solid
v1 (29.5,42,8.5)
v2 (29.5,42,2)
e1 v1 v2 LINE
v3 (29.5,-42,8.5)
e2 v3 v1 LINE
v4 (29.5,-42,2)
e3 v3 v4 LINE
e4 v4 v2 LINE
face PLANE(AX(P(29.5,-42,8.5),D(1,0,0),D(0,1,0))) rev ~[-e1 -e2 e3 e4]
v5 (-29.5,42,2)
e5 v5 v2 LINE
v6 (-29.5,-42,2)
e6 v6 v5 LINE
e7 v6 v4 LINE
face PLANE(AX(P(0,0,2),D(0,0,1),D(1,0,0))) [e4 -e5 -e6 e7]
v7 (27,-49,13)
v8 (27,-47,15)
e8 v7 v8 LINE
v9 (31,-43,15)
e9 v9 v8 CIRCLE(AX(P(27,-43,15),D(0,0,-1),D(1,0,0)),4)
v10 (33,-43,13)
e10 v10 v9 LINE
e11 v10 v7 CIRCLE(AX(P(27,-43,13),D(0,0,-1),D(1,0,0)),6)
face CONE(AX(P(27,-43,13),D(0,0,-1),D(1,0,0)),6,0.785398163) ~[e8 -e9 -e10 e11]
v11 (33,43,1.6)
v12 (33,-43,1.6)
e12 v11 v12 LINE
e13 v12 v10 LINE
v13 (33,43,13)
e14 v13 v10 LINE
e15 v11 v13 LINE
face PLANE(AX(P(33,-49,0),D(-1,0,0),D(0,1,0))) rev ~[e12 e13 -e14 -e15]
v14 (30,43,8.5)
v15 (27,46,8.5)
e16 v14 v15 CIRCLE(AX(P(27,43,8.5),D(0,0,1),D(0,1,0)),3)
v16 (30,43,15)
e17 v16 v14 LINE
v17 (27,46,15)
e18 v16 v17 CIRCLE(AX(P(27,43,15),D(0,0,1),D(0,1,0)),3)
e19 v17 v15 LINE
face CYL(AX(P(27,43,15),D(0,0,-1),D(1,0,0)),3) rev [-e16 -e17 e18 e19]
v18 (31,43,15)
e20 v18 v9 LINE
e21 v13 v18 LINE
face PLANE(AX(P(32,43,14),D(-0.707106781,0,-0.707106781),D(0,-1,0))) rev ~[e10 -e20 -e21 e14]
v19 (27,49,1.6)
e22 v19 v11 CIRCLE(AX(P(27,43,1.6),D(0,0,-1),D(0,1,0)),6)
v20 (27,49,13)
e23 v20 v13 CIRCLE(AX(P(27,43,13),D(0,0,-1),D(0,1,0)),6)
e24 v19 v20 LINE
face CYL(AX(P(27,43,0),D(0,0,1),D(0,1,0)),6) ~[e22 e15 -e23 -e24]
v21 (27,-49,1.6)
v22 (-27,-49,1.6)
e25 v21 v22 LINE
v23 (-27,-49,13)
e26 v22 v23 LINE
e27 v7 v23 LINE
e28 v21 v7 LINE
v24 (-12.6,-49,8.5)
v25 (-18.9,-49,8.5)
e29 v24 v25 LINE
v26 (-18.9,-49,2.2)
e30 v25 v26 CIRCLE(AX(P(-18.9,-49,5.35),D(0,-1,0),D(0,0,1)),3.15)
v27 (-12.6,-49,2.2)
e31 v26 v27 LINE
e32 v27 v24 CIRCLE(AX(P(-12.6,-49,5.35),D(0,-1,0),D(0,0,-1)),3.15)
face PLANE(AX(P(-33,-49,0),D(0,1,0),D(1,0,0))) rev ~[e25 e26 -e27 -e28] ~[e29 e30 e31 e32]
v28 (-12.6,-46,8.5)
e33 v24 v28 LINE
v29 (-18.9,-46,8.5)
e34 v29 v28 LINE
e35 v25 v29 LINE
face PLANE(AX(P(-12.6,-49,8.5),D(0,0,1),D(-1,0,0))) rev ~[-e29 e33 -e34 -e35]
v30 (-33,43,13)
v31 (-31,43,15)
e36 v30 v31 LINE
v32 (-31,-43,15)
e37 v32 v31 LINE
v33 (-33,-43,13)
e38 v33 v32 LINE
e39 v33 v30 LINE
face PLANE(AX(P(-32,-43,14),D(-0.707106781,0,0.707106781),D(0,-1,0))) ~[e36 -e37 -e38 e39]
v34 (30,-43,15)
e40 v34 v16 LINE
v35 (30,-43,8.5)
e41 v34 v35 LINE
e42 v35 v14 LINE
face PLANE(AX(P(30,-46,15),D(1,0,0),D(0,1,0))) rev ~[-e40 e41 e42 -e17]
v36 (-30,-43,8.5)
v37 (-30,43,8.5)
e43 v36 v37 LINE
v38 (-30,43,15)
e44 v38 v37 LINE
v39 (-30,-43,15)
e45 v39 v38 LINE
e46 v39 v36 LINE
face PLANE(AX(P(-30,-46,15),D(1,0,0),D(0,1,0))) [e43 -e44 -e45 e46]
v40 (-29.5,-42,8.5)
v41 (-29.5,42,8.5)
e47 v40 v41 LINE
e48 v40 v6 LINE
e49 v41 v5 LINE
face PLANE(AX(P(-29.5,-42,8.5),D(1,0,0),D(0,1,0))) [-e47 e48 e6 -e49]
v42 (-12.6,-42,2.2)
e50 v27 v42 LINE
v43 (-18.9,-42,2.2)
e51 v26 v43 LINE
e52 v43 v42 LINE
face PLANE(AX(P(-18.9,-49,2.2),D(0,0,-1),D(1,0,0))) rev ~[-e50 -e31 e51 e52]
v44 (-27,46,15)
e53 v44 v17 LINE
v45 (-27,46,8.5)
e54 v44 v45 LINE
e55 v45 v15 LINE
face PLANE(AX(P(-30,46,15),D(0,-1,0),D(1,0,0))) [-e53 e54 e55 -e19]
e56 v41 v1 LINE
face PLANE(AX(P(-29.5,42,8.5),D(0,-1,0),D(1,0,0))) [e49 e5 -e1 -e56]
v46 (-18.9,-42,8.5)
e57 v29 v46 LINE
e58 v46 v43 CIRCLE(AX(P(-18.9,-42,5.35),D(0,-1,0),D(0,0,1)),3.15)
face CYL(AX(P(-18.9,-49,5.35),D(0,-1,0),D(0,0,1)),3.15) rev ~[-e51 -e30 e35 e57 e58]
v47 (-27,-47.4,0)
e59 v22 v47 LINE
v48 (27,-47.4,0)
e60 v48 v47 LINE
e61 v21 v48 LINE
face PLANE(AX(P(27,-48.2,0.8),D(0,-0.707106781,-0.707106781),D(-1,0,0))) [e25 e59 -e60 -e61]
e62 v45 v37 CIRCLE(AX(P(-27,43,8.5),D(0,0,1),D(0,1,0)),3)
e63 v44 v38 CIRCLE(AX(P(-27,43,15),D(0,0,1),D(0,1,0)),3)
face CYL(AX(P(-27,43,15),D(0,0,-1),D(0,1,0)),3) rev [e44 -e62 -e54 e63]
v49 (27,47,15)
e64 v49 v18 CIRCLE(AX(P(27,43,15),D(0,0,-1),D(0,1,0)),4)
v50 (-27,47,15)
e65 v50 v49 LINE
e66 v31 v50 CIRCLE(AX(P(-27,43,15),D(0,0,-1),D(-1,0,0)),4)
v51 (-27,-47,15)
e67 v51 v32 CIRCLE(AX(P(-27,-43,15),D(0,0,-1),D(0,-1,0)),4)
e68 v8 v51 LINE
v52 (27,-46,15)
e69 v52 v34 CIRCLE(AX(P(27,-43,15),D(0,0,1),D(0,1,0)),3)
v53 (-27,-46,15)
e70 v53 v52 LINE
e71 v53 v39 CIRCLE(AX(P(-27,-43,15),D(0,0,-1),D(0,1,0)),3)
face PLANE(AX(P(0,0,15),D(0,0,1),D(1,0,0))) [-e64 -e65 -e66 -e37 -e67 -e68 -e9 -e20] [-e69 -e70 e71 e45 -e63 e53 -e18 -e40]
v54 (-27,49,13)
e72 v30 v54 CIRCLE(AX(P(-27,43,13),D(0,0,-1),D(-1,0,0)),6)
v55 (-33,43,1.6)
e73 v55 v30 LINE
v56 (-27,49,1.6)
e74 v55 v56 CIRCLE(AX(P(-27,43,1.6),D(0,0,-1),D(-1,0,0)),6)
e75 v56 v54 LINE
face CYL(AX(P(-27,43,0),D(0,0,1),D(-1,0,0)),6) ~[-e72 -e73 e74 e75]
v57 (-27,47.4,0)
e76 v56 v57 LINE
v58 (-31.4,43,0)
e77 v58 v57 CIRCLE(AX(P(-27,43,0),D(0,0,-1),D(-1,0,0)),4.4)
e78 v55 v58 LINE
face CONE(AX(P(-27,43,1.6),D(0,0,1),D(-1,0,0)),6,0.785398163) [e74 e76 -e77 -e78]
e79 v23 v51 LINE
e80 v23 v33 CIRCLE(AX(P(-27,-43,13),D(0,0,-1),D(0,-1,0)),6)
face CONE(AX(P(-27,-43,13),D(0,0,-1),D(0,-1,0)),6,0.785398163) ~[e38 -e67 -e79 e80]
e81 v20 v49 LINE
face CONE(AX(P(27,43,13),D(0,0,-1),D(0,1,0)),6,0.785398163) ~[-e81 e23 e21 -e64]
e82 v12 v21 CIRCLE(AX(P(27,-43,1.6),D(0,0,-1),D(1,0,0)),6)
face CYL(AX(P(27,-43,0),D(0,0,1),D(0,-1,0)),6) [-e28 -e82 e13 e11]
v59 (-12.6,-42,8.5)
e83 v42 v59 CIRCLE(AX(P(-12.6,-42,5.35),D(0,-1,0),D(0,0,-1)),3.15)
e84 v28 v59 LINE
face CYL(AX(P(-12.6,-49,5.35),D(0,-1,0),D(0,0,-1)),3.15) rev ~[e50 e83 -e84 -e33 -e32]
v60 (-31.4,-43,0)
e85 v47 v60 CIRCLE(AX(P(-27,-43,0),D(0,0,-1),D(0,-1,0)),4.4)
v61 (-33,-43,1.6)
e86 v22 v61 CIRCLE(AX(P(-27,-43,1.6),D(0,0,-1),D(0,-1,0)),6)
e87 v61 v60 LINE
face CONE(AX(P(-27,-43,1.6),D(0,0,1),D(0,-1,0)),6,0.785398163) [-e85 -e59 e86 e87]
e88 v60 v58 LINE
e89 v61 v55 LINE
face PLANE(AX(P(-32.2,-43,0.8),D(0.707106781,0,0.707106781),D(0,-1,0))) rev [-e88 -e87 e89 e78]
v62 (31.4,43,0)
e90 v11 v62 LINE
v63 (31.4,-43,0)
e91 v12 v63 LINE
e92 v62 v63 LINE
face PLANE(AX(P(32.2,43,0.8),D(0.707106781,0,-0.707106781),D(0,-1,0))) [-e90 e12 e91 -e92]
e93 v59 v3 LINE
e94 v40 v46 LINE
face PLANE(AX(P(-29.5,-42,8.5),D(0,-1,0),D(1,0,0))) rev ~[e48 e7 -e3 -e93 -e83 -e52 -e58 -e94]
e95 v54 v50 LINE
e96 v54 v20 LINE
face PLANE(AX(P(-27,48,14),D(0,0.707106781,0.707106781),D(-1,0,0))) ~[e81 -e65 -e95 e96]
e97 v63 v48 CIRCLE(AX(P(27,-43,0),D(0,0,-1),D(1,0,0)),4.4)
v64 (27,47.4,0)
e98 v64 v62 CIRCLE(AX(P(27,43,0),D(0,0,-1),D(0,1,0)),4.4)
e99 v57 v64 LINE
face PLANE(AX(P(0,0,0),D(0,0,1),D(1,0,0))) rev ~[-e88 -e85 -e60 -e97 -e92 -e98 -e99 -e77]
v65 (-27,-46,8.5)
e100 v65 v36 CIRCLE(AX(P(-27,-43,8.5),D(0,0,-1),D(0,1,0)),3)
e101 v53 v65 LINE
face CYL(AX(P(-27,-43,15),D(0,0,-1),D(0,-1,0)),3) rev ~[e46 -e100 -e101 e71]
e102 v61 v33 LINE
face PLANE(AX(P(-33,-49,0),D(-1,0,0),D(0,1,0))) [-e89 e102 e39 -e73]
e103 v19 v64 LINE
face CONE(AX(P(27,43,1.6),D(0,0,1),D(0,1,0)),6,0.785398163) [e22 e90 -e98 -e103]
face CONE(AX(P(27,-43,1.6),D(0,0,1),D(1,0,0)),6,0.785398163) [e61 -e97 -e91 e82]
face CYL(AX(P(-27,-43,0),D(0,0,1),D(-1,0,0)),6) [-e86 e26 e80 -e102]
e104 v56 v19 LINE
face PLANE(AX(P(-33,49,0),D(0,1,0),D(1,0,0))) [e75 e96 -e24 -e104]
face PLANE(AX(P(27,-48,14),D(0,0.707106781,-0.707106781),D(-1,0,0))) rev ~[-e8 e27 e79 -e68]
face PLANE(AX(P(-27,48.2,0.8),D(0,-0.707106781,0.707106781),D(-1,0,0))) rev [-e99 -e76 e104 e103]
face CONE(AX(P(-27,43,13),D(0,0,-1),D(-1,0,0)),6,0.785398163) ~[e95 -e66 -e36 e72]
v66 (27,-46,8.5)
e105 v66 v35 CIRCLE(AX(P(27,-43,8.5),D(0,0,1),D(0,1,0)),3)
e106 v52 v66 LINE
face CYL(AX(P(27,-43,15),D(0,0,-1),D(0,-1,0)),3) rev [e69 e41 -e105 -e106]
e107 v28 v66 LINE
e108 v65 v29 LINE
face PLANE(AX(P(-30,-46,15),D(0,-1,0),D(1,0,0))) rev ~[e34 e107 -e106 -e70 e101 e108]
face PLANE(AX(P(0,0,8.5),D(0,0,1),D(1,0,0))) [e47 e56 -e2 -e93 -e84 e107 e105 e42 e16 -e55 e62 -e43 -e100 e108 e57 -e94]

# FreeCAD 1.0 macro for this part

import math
import FreeCAD as App
import Part
import Sketcher

V = App.Vector


def edges_at(feature, points):
    """Names of the edges that pass closest to the given points."""
    edges = feature.Shape.Edges
    near = lambda p: min(range(len(edges)), key=lambda i: edges[i].distToShape(Part.Vertex(*p))[0])
    return sorted({f"Edge{near(p) + 1}" for p in points})


def add_polygon(sketch, points):
    """Adds a closed chain of lines whose ends are joined by coincident constraints."""
    first, n = sketch.GeometryCount, len(points)
    for a, b in zip(points, points[1:] + points[:1]):
        sketch.addGeometry(Part.LineSegment(App.Vector(*a, 0), App.Vector(*b, 0)), False)
    for i in range(n):
        sketch.addConstraint(Sketcher.Constraint("Coincident", first + i, 2, first + (i + 1) % n, 1))

doc = App.newDocument("Part")
body = doc.addObject("PartDesign::Body", "Body")

sketch1 = doc.addObject("Sketcher::SketchObject", "Sketch")
body.addObject(sketch1)
sketch1.AttachmentSupport = (doc.XY_Plane, [""])
sketch1.MapMode = "FlatFace"
add_polygon(sketch1, [(-33, 49), (-33, -49), (33, -49), (33, 49)])
sketch1.addConstraint(Sketcher.Constraint("Vertical", 0))
sketch1.addConstraint(Sketcher.Constraint("Horizontal", 1))
sketch1.addConstraint(Sketcher.Constraint("Vertical", 2))
sketch1.addConstraint(Sketcher.Constraint("Horizontal", 3))
sketch1.addConstraint(Sketcher.Constraint("Symmetric", 0, 2, 2, 2, -1, 1))
sketch1.addConstraint(Sketcher.Constraint("DistanceX", 1, 1, 1, 2, 66.0))
sketch1.addConstraint(Sketcher.Constraint("DistanceY", 0, 2, 0, 1, 98.0))
pad1 = doc.addObject("PartDesign::Pad", "Pad")
body.addObject(pad1)
pad1.Profile = sketch1
pad1.Length = 15

sketch2 = doc.addObject("Sketcher::SketchObject", "Sketch001")
body.addObject(sketch2)
sketch2.AttachmentSupport = (doc.XY_Plane, [""])
sketch2.MapMode = "FlatFace"
sketch2.AttachmentOffset = App.Placement(V(0, 0, 15), App.Rotation())
add_polygon(sketch2, [(-30, 46), (-30, -46), (30, -46), (30, 46)])
sketch2.addConstraint(Sketcher.Constraint("Vertical", 0))
sketch2.addConstraint(Sketcher.Constraint("Horizontal", 1))
sketch2.addConstraint(Sketcher.Constraint("Vertical", 2))
sketch2.addConstraint(Sketcher.Constraint("Horizontal", 3))
sketch2.addConstraint(Sketcher.Constraint("Symmetric", 0, 2, 2, 2, -1, 1))
sketch2.addConstraint(Sketcher.Constraint("DistanceX", 1, 1, 1, 2, 60.0))
sketch2.addConstraint(Sketcher.Constraint("DistanceY", 0, 2, 0, 1, 92.0))
pocket1 = doc.addObject("PartDesign::Pocket", "Pocket")
body.addObject(pocket1)
pocket1.Profile = sketch2
pocket1.Length = 6.5
doc.recompute()

fillet = doc.addObject("PartDesign::Fillet", "Fillet")
body.addObject(fillet)
fillet.Base = (pocket1, edges_at(pocket1, [
    (30, 46, 11.75),
    (-30, 46, 11.75),
    (-30, -46, 11.75),
    (30, -46, 11.75),
]))
fillet.Radius = 3

sketch3 = doc.addObject("Sketcher::SketchObject", "Sketch002")
body.addObject(sketch3)
sketch3.AttachmentSupport = (doc.XY_Plane, [""])
sketch3.MapMode = "FlatFace"
sketch3.AttachmentOffset = App.Placement(V(0, 0, 8.5), App.Rotation())
add_polygon(sketch3, [(-30, 42), (-30, -42), (30, -42), (30, 42)])
sketch3.addConstraint(Sketcher.Constraint("Vertical", 0))
sketch3.addConstraint(Sketcher.Constraint("Horizontal", 1))
sketch3.addConstraint(Sketcher.Constraint("Vertical", 2))
sketch3.addConstraint(Sketcher.Constraint("Horizontal", 3))
sketch3.addConstraint(Sketcher.Constraint("Symmetric", 0, 2, 2, 2, -1, 1))
sketch3.addConstraint(Sketcher.Constraint("DistanceX", 1, 1, 1, 2, 59.0))
sketch3.addConstraint(Sketcher.Constraint("DistanceY", 0, 2, 0, 1, 84.0))
pocket2 = doc.addObject("PartDesign::Pocket", "Pocket001")
body.addObject(pocket2)
pocket2.Profile = sketch3
pocket2.Length = 6.5

sketch4 = doc.addObject("Sketcher::SketchObject", "Sketch003")
body.addObject(sketch4)
sketch4.AttachmentSupport = (doc.XZ_Plane, [""])
sketch4.MapMode = "FlatFace"
sketch4.AttachmentOffset = App.Placement(V(0, 0, 49), App.Rotation())
sketch4.addGeometry(Part.ArcOfCircle(Part.Circle(V(-18.9, 5.3, 0), V(0, 0, 1), 3.1), math.radians(90), math.radians(270)), False)
sketch4.addGeometry(Part.LineSegment(V(-18.9, 2.2, 0), V(-12.6, 2.2, 0)), False)
sketch4.addGeometry(Part.ArcOfCircle(Part.Circle(V(-12.6, 5.3, 0), V(0, 0, 1), 3.1), math.radians(-90), math.radians(90)), False)
sketch4.addGeometry(Part.LineSegment(V(-12.6, 8.5, 0), V(-18.9, 8.5, 0)), False)
sketch4.addConstraint(Sketcher.Constraint("Tangent", 0, 2, 1, 1))
sketch4.addConstraint(Sketcher.Constraint("Tangent", 1, 2, 2, 1))
sketch4.addConstraint(Sketcher.Constraint("Tangent", 2, 2, 3, 1))
sketch4.addConstraint(Sketcher.Constraint("Tangent", 3, 2, 0, 1))
sketch4.addConstraint(Sketcher.Constraint("Horizontal", 1))
sketch4.addConstraint(Sketcher.Constraint("Horizontal", 3))
sketch4.addConstraint(Sketcher.Constraint("Radius", 0, 3.15))
sketch4.addConstraint(Sketcher.Constraint("DistanceX", 1, 1, 1, 2, 6.3))
sketch4.addConstraint(Sketcher.Constraint("DistanceX", 0, 3, -1, 1, 18.9))
sketch4.addConstraint(Sketcher.Constraint("DistanceY", -1, 1, 0, 2, 2.2))
pocket3 = doc.addObject("PartDesign::Pocket", "Pocket002")
body.addObject(pocket3)
pocket3.Profile = sketch4
pocket3.Length = 7
doc.recompute()

fillet2 = doc.addObject("PartDesign::Fillet", "Fillet001")
body.addObject(fillet2)
fillet2.Base = (pocket3, edges_at(pocket3, [
    (33, -49, 7.5),
    (33, 49, 7.5),
    (-33, -49, 7.5),
    (-33, 49, 7.5),
]))
fillet2.Radius = 6
doc.recompute()

chamfer = doc.addObject("PartDesign::Chamfer", "Chamfer")
body.addObject(chamfer)
chamfer.Base = (fillet2, edges_at(fillet2, [
    (0, 49, 0),
    (-31.243, 47.243, 0),
    (31.243, 47.243, 0),
    (-33, 0, 0),
    (33, 0, 0),
    (-31.243, -47.243, 0),
    (31.243, -47.243, 0),
    (0, -49, 0),
]))
chamfer.Size = 1.6
doc.recompute()

chamfer2 = doc.addObject("PartDesign::Chamfer", "Chamfer001")
body.addObject(chamfer2)
chamfer2.Base = (chamfer, edges_at(chamfer, [(-33, 0, 15)]))
chamfer2.Size = 2

doc.recompute()
